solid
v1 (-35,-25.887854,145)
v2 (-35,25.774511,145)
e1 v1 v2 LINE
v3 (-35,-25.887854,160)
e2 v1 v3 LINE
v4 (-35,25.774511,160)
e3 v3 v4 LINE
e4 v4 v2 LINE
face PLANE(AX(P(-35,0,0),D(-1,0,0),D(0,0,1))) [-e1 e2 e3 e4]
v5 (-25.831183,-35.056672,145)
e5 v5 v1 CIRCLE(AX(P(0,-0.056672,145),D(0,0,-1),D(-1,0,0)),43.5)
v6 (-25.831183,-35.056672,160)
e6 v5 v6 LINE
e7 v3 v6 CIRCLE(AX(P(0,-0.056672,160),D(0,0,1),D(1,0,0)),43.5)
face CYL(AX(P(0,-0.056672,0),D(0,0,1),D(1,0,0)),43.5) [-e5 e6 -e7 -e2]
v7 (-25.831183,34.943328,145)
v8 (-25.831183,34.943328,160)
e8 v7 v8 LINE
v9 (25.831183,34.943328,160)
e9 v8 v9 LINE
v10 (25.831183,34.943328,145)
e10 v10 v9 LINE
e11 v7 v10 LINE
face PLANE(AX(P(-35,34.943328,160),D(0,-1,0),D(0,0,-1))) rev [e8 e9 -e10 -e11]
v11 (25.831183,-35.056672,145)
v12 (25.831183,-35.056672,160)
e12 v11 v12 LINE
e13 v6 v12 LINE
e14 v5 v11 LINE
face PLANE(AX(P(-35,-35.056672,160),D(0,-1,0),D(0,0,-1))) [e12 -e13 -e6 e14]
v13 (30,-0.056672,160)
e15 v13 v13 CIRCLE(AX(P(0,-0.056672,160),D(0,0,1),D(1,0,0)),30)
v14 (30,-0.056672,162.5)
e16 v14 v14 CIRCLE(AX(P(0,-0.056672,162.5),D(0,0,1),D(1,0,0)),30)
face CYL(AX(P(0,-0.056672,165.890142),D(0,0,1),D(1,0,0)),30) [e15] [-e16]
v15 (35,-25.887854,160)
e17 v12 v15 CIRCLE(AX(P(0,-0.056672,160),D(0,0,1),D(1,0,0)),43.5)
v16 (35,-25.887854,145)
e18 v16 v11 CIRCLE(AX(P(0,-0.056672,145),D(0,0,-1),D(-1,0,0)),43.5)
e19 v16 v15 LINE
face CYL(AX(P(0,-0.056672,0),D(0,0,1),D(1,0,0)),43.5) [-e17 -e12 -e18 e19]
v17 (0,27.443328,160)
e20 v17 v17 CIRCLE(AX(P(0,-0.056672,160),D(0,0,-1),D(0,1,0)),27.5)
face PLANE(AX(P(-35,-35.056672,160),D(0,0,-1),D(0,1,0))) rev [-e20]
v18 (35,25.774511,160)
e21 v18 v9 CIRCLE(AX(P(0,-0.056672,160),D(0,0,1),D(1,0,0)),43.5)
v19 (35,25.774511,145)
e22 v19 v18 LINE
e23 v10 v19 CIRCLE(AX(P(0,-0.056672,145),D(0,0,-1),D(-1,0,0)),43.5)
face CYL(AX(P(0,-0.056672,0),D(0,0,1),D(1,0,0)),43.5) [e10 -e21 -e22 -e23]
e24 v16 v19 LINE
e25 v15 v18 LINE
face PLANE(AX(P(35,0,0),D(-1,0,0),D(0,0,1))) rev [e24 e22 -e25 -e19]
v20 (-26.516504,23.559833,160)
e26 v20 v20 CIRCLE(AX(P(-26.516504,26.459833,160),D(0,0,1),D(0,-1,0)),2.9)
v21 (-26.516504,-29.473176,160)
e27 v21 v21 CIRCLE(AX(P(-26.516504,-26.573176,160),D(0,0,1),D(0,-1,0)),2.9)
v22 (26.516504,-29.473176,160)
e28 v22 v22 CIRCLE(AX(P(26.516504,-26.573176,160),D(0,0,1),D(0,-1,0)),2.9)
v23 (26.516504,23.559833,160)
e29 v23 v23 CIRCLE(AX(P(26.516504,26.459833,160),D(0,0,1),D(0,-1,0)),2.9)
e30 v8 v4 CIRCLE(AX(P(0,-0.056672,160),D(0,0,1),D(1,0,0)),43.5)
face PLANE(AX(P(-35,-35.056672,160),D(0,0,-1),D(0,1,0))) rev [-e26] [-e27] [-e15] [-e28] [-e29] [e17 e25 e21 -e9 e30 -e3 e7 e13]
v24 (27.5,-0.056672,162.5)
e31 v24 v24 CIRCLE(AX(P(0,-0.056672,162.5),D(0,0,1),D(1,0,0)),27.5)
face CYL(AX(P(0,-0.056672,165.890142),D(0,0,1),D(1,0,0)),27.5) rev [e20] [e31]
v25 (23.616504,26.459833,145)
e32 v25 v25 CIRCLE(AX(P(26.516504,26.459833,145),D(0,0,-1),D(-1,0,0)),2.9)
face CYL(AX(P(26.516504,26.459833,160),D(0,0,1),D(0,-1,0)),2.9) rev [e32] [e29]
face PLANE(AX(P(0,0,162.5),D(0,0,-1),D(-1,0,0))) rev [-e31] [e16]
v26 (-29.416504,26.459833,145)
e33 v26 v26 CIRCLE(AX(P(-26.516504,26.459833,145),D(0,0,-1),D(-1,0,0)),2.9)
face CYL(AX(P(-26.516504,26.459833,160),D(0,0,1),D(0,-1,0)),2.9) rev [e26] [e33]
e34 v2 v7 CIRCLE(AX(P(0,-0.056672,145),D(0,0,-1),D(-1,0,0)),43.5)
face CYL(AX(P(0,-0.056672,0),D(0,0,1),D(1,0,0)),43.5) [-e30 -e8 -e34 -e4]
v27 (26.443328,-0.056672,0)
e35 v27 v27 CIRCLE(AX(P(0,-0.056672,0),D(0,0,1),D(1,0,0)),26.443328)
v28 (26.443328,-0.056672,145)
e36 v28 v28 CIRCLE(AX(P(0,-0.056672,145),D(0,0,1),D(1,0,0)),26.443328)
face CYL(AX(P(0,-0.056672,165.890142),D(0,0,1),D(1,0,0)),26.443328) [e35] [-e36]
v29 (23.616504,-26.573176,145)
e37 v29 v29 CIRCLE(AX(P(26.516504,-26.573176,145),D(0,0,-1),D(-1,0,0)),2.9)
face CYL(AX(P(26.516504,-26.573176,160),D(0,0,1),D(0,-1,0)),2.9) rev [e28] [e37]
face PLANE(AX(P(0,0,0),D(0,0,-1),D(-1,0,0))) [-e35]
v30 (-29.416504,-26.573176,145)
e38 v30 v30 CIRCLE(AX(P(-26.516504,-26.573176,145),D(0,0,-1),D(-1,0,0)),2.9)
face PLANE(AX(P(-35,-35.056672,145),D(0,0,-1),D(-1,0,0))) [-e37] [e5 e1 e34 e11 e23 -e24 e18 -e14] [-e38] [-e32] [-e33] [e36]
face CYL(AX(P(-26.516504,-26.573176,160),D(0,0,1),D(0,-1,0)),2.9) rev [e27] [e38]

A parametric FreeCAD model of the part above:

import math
import FreeCAD as App
import Part
import Sketcher
from FreeCAD import Vector
Q = App.Units.Quantity


def add_polygon(sketch, points):
    """Adds a closed chain of lines whose ends are joined by coincident constraints."""
    first, n = sketch.GeometryCount, len(points)
    for a, b in zip(points, points[1:] + points[:1]):
        sketch.addGeometry(Part.LineSegment(App.Vector(*a, 0), App.Vector(*b, 0)), False)
    for i in range(n):
        sketch.addConstraint(Sketcher.Constraint("Coincident", first + i, 2, first + (i + 1) % n, 1))

doc = App.newDocument("Part")
body = doc.addObject("PartDesign::Body", "Body")
body.AllowCompound = True

# Sketch on YZ plane
sketch1 = body.newObject("Sketcher::SketchObject", "Sketch")
sketch1.AttachmentSupport = (doc.getObject("YZ_Plane"), [""])
sketch1.MapMode = "FlatFace"
add_polygon(sketch1, [(-0.056672, 145), (-26.5, 145), (-26.5, 0), (-0.056672, 0)])  # lines 0-3
add_polygon(sketch1, [(-27.556672, 162.5), (-30.056672, 162.5), (-30.056672, 160), (-27.556672, 160)])  # lines 4-7
sketch1.addGeometry(Part.LineSegment(Vector(-0.056672, 162.5, 0), Vector(-0.056672, 0, 0)), True)  # axis
sketch1.addConstraint([
    Sketcher.Constraint("Horizontal", 0),
    Sketcher.Constraint("Vertical", 1),
    Sketcher.Constraint("Horizontal", 2),
    Sketcher.Constraint("Vertical", 3),
    Sketcher.Constraint("Horizontal", 4),
    Sketcher.Constraint("Vertical", 5),
    Sketcher.Constraint("Horizontal", 6),
    Sketcher.Constraint("Vertical", 7),
    Sketcher.Constraint("Vertical", 8),
    Sketcher.Constraint("Coincident", 8, 2, 2, 2),
    Sketcher.Constraint("PointOnObject", 1, 2, -1),
    Sketcher.Constraint("Horizontal", 7, 2, 8, 1),
    Sketcher.Constraint("Equal", 6, 5),
    Sketcher.Constraint("DistanceY", 1, 2, 1, 1, Q("145 mm")),
    Sketcher.Constraint("DistanceX", 4, 2, 4, 1, Q("2.5 mm")),
    Sketcher.Constraint("DistanceY", 8, 2, 8, 1, Q("162.5 mm")),
    Sketcher.Constraint("DistanceX", 4, 2, 3, 2, Q("30 mm")),
    Sketcher.Constraint("DistanceX", 0, 2, -1, 1, Q("26.5 mm")),
    Sketcher.Constraint("DistanceX", 0, 2, 0, 1, Q("26.443328 mm")),
])
revolution = body.newObject("PartDesign::Revolution", "Revolution")
revolution.Profile = sketch1
revolution.ReferenceAxis = (sketch1, ["Axis0"])
revolution.Angle = 360

# Sketch on YZ plane
sketch2 = body.newObject("Sketcher::SketchObject", "Sketch001")
sketch2.AttachmentSupport = (doc.getObject("YZ_Plane"), [""])
sketch2.MapMode = "FlatFace"
add_polygon(sketch2, [(34.943328, 160), (-35.056672, 160), (-35.056672, 145), (34.943328, 145)])  # lines 0-3
sketch2.addConstraint([
    Sketcher.Constraint("Horizontal", 0),
    Sketcher.Constraint("Vertical", 1),
    Sketcher.Constraint("Horizontal", 2),
    Sketcher.Constraint("Vertical", 3),
    Sketcher.Constraint("DistanceX", 0, 2, 0, 1, Q("70 mm")),
    Sketcher.Constraint("DistanceY", 1, 2, 1, 1, Q("15 mm")),
    Sketcher.Constraint("DistanceY", -1, 1, 0, 2, Q("160 mm")),
    Sketcher.Constraint("DistanceX", 0, 2, -1, 1, Q("35.056672 mm")),
])
pad1 = body.newObject("PartDesign::Pad", "Pad")
pad1.Profile = sketch2
pad1.Type = "TwoLengths"
pad1.Length = 35
pad1.Length2 = 35

# Sketch on XY plane
sketch3 = body.newObject("Sketcher::SketchObject", "Sketch002")
sketch3.AttachmentSupport = (doc.getObject("XY_Plane"), [""])
sketch3.MapMode = "FlatFace"
sketch3.AttachmentOffset = App.Placement(Vector(0, 0, 160), App.Rotation())
sketch3.addGeometry([
    Part.LineSegment(Vector(-35, -35.056672, 0), Vector(-25.831183, -35.056672, 0)),  # 0
    Part.ArcOfCircle(Part.Circle(Vector(0, -0.056672, 0), Vector(0, 0, 1), 43.5), math.radians(-135), math.radians(-126.428579)),  # 1
    Part.ArcOfCircle(Part.Circle(Vector(0, -0.056672, 0), Vector(0, 0, 1), 43.5), math.radians(-143.571421), math.radians(-135)),  # 2
    Part.LineSegment(Vector(-35, -25.887854, 0), Vector(-35, -35.056672, 0)),  # 3
    Part.ArcOfCircle(Part.Circle(Vector(0, -0.056672, 0), Vector(0, 0, 1), 43.5), math.radians(-45), math.radians(-36.428579)),  # 4
    Part.ArcOfCircle(Part.Circle(Vector(0, -0.056672, 0), Vector(0, 0, 1), 43.5), math.radians(-53.571421), math.radians(-45)),  # 5
    Part.LineSegment(Vector(25.831183, -35.056672, 0), Vector(35, -35.056672, 0)),  # 6
    Part.LineSegment(Vector(35, -35.056672, 0), Vector(35, -25.887854, 0)),  # 7
    Part.ArcOfCircle(Part.Circle(Vector(0, -0.056672, 0), Vector(0, 0, 1), 43.5), math.radians(36.428579), math.radians(45)),  # 8
    Part.LineSegment(Vector(35, 25.774511, 0), Vector(35, 34.943328, 0)),  # 9
    Part.LineSegment(Vector(35, 34.943328, 0), Vector(25.831183, 34.943328, 0)),  # 10
    Part.ArcOfCircle(Part.Circle(Vector(0, -0.056672, 0), Vector(0, 0, 1), 43.5), math.radians(45), math.radians(53.571421)),  # 11
    Part.ArcOfCircle(Part.Circle(Vector(0, -0.056672, 0), Vector(0, 0, 1), 43.5), math.radians(135), math.radians(143.571421)),  # 12
    Part.ArcOfCircle(Part.Circle(Vector(0, -0.056672, 0), Vector(0, 0, 1), 43.5), math.radians(126.428579), math.radians(135)),  # 13
    Part.LineSegment(Vector(-25.831183, 34.943328, 0), Vector(-35, 34.943328, 0)),  # 14
    Part.LineSegment(Vector(-35, 34.943328, 0), Vector(-35, 25.774511, 0)),  # 15
], False)
sketch3.addConstraint([
    Sketcher.Constraint("Coincident", 0, 2, 1, 2),
    Sketcher.Constraint("Tangent", 1, 1, 2, 2),
    Sketcher.Constraint("Coincident", 2, 1, 3, 1),
    Sketcher.Constraint("Coincident", 3, 2, 0, 1),
    Sketcher.Constraint("Tangent", 4, 1, 5, 2),
    Sketcher.Constraint("Coincident", 5, 1, 6, 1),
    Sketcher.Constraint("Coincident", 6, 2, 7, 1),
    Sketcher.Constraint("Coincident", 7, 2, 4, 2),
    Sketcher.Constraint("Coincident", 8, 1, 9, 1),
    Sketcher.Constraint("Coincident", 9, 2, 10, 1),
    Sketcher.Constraint("Coincident", 10, 2, 11, 2),
    Sketcher.Constraint("Tangent", 11, 1, 8, 2),
    Sketcher.Constraint("Tangent", 12, 1, 13, 2),
    Sketcher.Constraint("Coincident", 13, 1, 14, 1),
    Sketcher.Constraint("Coincident", 14, 2, 15, 1),
    Sketcher.Constraint("Coincident", 15, 2, 12, 2),
    Sketcher.Constraint("Horizontal", 0),
    Sketcher.Constraint("Vertical", 3),
    Sketcher.Constraint("Horizontal", 6),
    Sketcher.Constraint("Vertical", 7),
    Sketcher.Constraint("Vertical", 9),
    Sketcher.Constraint("Horizontal", 10),
    Sketcher.Constraint("Horizontal", 14),
    Sketcher.Constraint("Vertical", 15),
    Sketcher.Constraint("Coincident", 4, 3, 1, 3),
    Sketcher.Constraint("Coincident", 8, 3, 1, 3),
    Sketcher.Constraint("Coincident", 12, 3, 1, 3),
    Sketcher.Constraint("Equal", 1, 2),
    Sketcher.Constraint("Equal", 2, 4),
    Sketcher.Constraint("Equal", 4, 5),
    Sketcher.Constraint("Equal", 5, 8),
    Sketcher.Constraint("Equal", 8, 11),
    Sketcher.Constraint("Equal", 11, 12),
    Sketcher.Constraint("Equal", 12, 13),
    Sketcher.Constraint("Symmetric", 1, 1, 4, 1, -2),
    Sketcher.Constraint("Symmetric", 3, 2, 6, 2, -2),
    Sketcher.Constraint("Symmetric", 9, 2, 14, 2, -2),
    Sketcher.Constraint("Horizontal", 11, 1, 12, 1),
    Sketcher.Constraint("Vertical", 7, 2, 8, 1),
    Sketcher.Constraint("Vertical", 5, 1, 10, 2),
    Sketcher.Constraint("Vertical", 4, 1, 11, 1),
    Sketcher.Constraint("Equal", 14, 3),
    Sketcher.Constraint("Radius", 1, Q("43.5 mm")),
    Sketcher.Constraint("DistanceX", 2, 1, -1, 1, Q("35 mm")),
    Sketcher.Constraint("DistanceY", 1, 3, -1, 1, Q("0.056672 mm")),
    Sketcher.Constraint("DistanceX", 1, 1, -1, 1, Q("30.759145 mm")),
])
pocket1 = body.newObject("PartDesign::Pocket", "Pocket")
pocket1.Profile = sketch3
pocket1.Type = "ThroughAll"

# Sketch on XY plane
sketch4 = body.newObject("Sketcher::SketchObject", "Sketch003")
sketch4.AttachmentSupport = (doc.getObject("XY_Plane"), [""])
sketch4.MapMode = "FlatFace"
sketch4.AttachmentOffset = App.Placement(Vector(0, 0, 160), App.Rotation())
sketch4.addGeometry([
    Part.Circle(Vector(-26.516504, -26.573176, 0), Vector(0, 0, 1), 2.9),
    Part.Circle(Vector(26.516504, -26.573176, 0), Vector(0, 0, 1), 2.9),
    Part.Circle(Vector(26.516504, 26.459833, 0), Vector(0, 0, 1), 2.9),
    Part.Circle(Vector(-26.516504, 26.459833, 0), Vector(0, 0, 1), 2.9),
], False)
sketch4.addConstraint([
    Sketcher.Constraint("Equal", 0, 1),
    Sketcher.Constraint("Equal", 1, 2),
    Sketcher.Constraint("Equal", 2, 3),
    Sketcher.Constraint("Symmetric", 0, 3, 1, 3, -2),
    Sketcher.Constraint("Symmetric", 2, 3, 3, 3, -2),
    Sketcher.Constraint("Vertical", 1, 3, 2, 3),
    Sketcher.Constraint("Diameter", 0, Q("5.8 mm")),
    Sketcher.Constraint("DistanceX", 0, 3, 1, 3, Q("53.033009 mm")),
    Sketcher.Constraint("DistanceY", 1, 3, 2, 3, Q("53.033009 mm")),
    Sketcher.Constraint("DistanceY", 0, 3, -1, 1, Q("26.573176 mm")),
])
doc.recompute()
hole = body.newObject("PartDesign::Hole", "Hole")
hole.Profile = sketch4
hole.ThreadType = "None"
hole.Diameter = 5.8
hole.DepthType = "ThroughAll"

doc.recompute()
